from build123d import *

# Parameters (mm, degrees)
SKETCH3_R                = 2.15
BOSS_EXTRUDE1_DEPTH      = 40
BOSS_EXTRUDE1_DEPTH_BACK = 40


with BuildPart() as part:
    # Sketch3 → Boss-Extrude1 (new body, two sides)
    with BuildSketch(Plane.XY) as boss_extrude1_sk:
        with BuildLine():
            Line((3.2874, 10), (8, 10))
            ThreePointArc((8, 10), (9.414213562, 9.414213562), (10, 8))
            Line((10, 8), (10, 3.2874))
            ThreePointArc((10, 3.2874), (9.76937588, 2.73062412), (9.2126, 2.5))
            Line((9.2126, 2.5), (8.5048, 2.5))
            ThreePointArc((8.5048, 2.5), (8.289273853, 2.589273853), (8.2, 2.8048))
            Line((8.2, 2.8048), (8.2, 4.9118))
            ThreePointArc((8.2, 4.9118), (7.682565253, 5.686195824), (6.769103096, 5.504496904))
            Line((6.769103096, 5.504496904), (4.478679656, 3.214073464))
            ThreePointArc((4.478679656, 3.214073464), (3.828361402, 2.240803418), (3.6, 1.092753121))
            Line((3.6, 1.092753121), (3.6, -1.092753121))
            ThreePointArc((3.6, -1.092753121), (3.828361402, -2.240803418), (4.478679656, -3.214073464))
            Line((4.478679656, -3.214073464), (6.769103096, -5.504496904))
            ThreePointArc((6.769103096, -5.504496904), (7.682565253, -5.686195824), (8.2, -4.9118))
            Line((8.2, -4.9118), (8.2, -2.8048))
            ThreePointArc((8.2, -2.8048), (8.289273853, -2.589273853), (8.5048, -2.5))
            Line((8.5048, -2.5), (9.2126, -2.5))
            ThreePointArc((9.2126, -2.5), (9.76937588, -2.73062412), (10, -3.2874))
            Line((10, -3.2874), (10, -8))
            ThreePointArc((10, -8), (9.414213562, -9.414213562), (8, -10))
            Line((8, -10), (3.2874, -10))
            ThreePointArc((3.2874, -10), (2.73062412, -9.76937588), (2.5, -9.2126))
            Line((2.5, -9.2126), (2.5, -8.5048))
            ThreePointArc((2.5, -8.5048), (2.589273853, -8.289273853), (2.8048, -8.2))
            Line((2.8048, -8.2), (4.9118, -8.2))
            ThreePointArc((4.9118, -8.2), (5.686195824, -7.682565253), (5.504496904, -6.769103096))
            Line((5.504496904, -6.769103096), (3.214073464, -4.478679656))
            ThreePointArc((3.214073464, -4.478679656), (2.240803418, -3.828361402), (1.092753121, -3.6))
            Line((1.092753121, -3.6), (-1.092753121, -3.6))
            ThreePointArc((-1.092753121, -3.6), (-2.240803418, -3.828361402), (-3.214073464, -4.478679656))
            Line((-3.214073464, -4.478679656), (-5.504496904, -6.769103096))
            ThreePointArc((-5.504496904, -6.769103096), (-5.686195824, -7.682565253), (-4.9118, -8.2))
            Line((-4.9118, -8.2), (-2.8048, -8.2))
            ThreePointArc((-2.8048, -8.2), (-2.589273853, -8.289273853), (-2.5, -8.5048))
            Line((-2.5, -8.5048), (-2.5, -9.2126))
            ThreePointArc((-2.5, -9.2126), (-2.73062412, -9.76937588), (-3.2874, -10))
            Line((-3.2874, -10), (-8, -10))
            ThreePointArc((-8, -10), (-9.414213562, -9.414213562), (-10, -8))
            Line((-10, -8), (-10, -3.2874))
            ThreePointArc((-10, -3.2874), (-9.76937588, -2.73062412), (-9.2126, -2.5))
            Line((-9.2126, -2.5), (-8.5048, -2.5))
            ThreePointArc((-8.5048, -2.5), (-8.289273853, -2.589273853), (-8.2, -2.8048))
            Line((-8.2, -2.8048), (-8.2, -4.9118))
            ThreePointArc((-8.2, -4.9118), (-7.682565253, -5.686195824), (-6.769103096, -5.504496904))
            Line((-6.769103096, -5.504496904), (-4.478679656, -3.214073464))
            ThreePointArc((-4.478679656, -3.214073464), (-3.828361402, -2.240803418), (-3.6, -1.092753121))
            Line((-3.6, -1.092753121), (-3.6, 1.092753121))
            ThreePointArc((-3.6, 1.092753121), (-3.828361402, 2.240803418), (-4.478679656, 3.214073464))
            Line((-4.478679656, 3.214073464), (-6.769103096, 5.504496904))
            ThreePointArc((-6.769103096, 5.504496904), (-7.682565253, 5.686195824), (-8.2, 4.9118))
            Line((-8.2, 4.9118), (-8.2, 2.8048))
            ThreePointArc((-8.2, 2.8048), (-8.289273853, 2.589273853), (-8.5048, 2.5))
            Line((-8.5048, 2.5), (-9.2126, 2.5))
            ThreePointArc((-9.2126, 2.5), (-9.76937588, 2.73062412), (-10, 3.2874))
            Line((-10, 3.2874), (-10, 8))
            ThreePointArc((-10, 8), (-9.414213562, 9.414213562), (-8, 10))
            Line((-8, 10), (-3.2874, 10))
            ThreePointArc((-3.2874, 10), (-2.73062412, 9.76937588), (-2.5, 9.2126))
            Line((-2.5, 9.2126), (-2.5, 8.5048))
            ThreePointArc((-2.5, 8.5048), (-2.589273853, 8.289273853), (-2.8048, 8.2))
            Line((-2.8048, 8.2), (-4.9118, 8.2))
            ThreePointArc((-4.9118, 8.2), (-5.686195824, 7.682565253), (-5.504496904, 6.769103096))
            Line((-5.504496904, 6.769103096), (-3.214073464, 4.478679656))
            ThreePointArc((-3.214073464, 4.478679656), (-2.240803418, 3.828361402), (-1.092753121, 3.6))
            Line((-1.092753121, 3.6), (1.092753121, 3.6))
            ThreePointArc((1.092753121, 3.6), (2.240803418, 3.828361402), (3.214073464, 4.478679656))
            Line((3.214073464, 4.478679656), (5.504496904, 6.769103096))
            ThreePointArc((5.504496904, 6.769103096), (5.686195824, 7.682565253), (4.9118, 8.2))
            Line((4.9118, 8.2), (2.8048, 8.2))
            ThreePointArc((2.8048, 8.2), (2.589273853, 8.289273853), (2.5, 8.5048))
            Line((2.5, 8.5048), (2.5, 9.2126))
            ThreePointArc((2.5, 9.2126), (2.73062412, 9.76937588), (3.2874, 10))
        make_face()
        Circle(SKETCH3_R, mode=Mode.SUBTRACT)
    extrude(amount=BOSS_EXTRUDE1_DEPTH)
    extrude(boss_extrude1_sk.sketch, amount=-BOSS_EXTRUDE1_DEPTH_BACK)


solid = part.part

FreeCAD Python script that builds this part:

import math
import FreeCAD as App
import Part
import Sketcher

doc = App.newDocument("Part")
body = doc.addObject("PartDesign::Body", "Body")

# Sketch on XY plane
sketch1 = body.newObject("Sketcher::SketchObject", "Sketch")
sketch1.AttachmentSupport = (doc.getObject("XY_Plane"), [""])
sketch1.MapMode = "FlatFace"
sketch1.addGeometry(Part.LineSegment(App.Vector(8, 10, 0), App.Vector(3.29, 10, 0)), False)
sketch1.addGeometry(Part.ArcOfCircle(Part.Circle(App.Vector(3.29, 9.21, 0), App.Vector(0, 0, 1), 0.79), math.radians(90), math.radians(180)), False)
sketch1.addGeometry(Part.LineSegment(App.Vector(2.5, 9.21, 0), App.Vector(2.5, 8.5, 0)), False)
sketch1.addGeometry(Part.ArcOfCircle(Part.Circle(App.Vector(2.8, 8.5, 0), App.Vector(0, 0, 1), 0.3), math.radians(180), math.radians(270)), False)
sketch1.addGeometry(Part.LineSegment(App.Vector(2.8, 8.2, 0), App.Vector(4.91, 8.2, 0)), False)
sketch1.addGeometry(Part.ArcOfCircle(Part.Circle(App.Vector(4.91, 7.36, 0), App.Vector(0, 0, 1), 0.84), math.radians(-45), math.radians(90)), False)
sketch1.addGeometry(Part.LineSegment(App.Vector(5.5, 6.77, 0), App.Vector(3.21, 4.48, 0)), False)
sketch1.addGeometry(Part.ArcOfCircle(Part.Circle(App.Vector(1.09, 6.6, 0), App.Vector(0, 0, 1), 3), math.radians(-90), math.radians(-45)), False)
sketch1.addGeometry(Part.LineSegment(App.Vector(1.09, 3.6, 0), App.Vector(-1.09, 3.6, 0)), False)
sketch1.addGeometry(Part.ArcOfCircle(Part.Circle(App.Vector(-1.09, 6.6, 0), App.Vector(0, 0, 1), 3), math.radians(-135), math.radians(-90)), False)
sketch1.addGeometry(Part.LineSegment(App.Vector(-3.21, 4.48, 0), App.Vector(-5.5, 6.77, 0)), False)
sketch1.addGeometry(Part.ArcOfCircle(Part.Circle(App.Vector(-4.91, 7.36, 0), App.Vector(0, 0, 1), 0.84), math.radians(90), math.radians(225)), False)
sketch1.addGeometry(Part.LineSegment(App.Vector(-4.91, 8.2, 0), App.Vector(-2.8, 8.2, 0)), False)
sketch1.addGeometry(Part.ArcOfCircle(Part.Circle(App.Vector(-2.8, 8.5, 0), App.Vector(0, 0, 1), 0.3), math.radians(-90), math.radians(0)), False)
sketch1.addGeometry(Part.LineSegment(App.Vector(-2.5, 8.5, 0), App.Vector(-2.5, 9.21, 0)), False)
sketch1.addGeometry(Part.ArcOfCircle(Part.Circle(App.Vector(-3.29, 9.21, 0), App.Vector(0, 0, 1), 0.79), math.radians(0), math.radians(90)), False)
sketch1.addGeometry(Part.LineSegment(App.Vector(-3.29, 10, 0), App.Vector(-8, 10, 0)), False)
sketch1.addGeometry(Part.ArcOfCircle(Part.Circle(App.Vector(-8, 8, 0), App.Vector(0, 0, 1), 2), math.radians(90), math.radians(180)), False)
sketch1.addGeometry(Part.LineSegment(App.Vector(-10, 8, 0), App.Vector(-10, 3.29, 0)), False)
sketch1.addGeometry(Part.ArcOfCircle(Part.Circle(App.Vector(-9.21, 3.29, 0), App.Vector(0, 0, 1), 0.79), math.radians(180), math.radians(270)), False)
sketch1.addGeometry(Part.LineSegment(App.Vector(-9.21, 2.5, 0), App.Vector(-8.5, 2.5, 0)), False)
sketch1.addGeometry(Part.ArcOfCircle(Part.Circle(App.Vector(-8.5, 2.8, 0), App.Vector(0, 0, 1), 0.3), math.radians(-90), math.radians(0)), False)
sketch1.addGeometry(Part.LineSegment(App.Vector(-8.2, 2.8, 0), App.Vector(-8.2, 4.91, 0)), False)
sketch1.addGeometry(Part.ArcOfCircle(Part.Circle(App.Vector(-7.36, 4.91, 0), App.Vector(0, 0, 1), 0.84), math.radians(45), math.radians(180)), False)
sketch1.addGeometry(Part.LineSegment(App.Vector(-6.77, 5.5, 0), App.Vector(-4.48, 3.21, 0)), False)
sketch1.addGeometry(Part.ArcOfCircle(Part.Circle(App.Vector(-6.6, 1.09, 0), App.Vector(0, 0, 1), 3), math.radians(0), math.radians(45)), False)
sketch1.addGeometry(Part.LineSegment(App.Vector(-3.6, 1.09, 0), App.Vector(-3.6, -1.09, 0)), False)
sketch1.addGeometry(Part.ArcOfCircle(Part.Circle(App.Vector(-6.6, -1.09, 0), App.Vector(0, 0, 1), 3), math.radians(-45), math.radians(0)), False)
sketch1.addGeometry(Part.LineSegment(App.Vector(-4.48, -3.21, 0), App.Vector(-6.77, -5.5, 0)), False)
sketch1.addGeometry(Part.ArcOfCircle(Part.Circle(App.Vector(-7.36, -4.91, 0), App.Vector(0, 0, 1), 0.84), math.radians(180), math.radians(315)), False)
sketch1.addGeometry(Part.LineSegment(App.Vector(-8.2, -4.91, 0), App.Vector(-8.2, -2.8, 0)), False)
sketch1.addGeometry(Part.ArcOfCircle(Part.Circle(App.Vector(-8.5, -2.8, 0), App.Vector(0, 0, 1), 0.3), math.radians(0), math.radians(90)), False)
sketch1.addGeometry(Part.LineSegment(App.Vector(-8.5, -2.5, 0), App.Vector(-9.21, -2.5, 0)), False)
sketch1.addGeometry(Part.ArcOfCircle(Part.Circle(App.Vector(-9.21, -3.29, 0), App.Vector(0, 0, 1), 0.79), math.radians(90), math.radians(180)), False)
sketch1.addGeometry(Part.LineSegment(App.Vector(-10, -3.29, 0), App.Vector(-10, -8, 0)), False)
sketch1.addGeometry(Part.ArcOfCircle(Part.Circle(App.Vector(-8, -8, 0), App.Vector(0, 0, 1), 2), math.radians(-180), math.radians(-90)), False)
sketch1.addGeometry(Part.LineSegment(App.Vector(-8, -10, 0), App.Vector(-3.29, -10, 0)), False)
sketch1.addGeometry(Part.ArcOfCircle(Part.Circle(App.Vector(-3.29, -9.21, 0), App.Vector(0, 0, 1), 0.79), math.radians(-90), math.radians(0)), False)
sketch1.addGeometry(Part.LineSegment(App.Vector(-2.5, -9.21, 0), App.Vector(-2.5, -8.5, 0)), False)
sketch1.addGeometry(Part.ArcOfCircle(Part.Circle(App.Vector(-2.8, -8.5, 0), App.Vector(0, 0, 1), 0.3), math.radians(0), math.radians(90)), False)
sketch1.addGeometry(Part.LineSegment(App.Vector(-2.8, -8.2, 0), App.Vector(-4.91, -8.2, 0)), False)
sketch1.addGeometry(Part.ArcOfCircle(Part.Circle(App.Vector(-4.91, -7.36, 0), App.Vector(0, 0, 1), 0.84), math.radians(135), math.radians(270)), False)
sketch1.addGeometry(Part.LineSegment(App.Vector(-5.5, -6.77, 0), App.Vector(-3.21, -4.48, 0)), False)
sketch1.addGeometry(Part.ArcOfCircle(Part.Circle(App.Vector(-1.09, -6.6, 0), App.Vector(0, 0, 1), 3), math.radians(90), math.radians(135)), False)
sketch1.addGeometry(Part.LineSegment(App.Vector(-1.09, -3.6, 0), App.Vector(1.09, -3.6, 0)), False)
sketch1.addGeometry(Part.ArcOfCircle(Part.Circle(App.Vector(1.09, -6.6, 0), App.Vector(0, 0, 1), 3), math.radians(45), math.radians(90)), False)
sketch1.addGeometry(Part.LineSegment(App.Vector(3.21, -4.48, 0), App.Vector(5.5, -6.77, 0)), False)
sketch1.addGeometry(Part.ArcOfCircle(Part.Circle(App.Vector(4.91, -7.36, 0), App.Vector(0, 0, 1), 0.84), math.radians(-90), math.radians(45)), False)
sketch1.addGeometry(Part.LineSegment(App.Vector(4.91, -8.2, 0), App.Vector(2.8, -8.2, 0)), False)
sketch1.addGeometry(Part.ArcOfCircle(Part.Circle(App.Vector(2.8, -8.5, 0), App.Vector(0, 0, 1), 0.3), math.radians(90), math.radians(180)), False)
sketch1.addGeometry(Part.LineSegment(App.Vector(2.5, -8.5, 0), App.Vector(2.5, -9.21, 0)), False)
sketch1.addGeometry(Part.ArcOfCircle(Part.Circle(App.Vector(3.29, -9.21, 0), App.Vector(0, 0, 1), 0.79), math.radians(180), math.radians(270)), False)
sketch1.addGeometry(Part.LineSegment(App.Vector(3.29, -10, 0), App.Vector(8, -10, 0)), False)
sketch1.addGeometry(Part.ArcOfCircle(Part.Circle(App.Vector(8, -8, 0), App.Vector(0, 0, 1), 2), math.radians(-90), math.radians(0)), False)
sketch1.addGeometry(Part.LineSegment(App.Vector(10, -8, 0), App.Vector(10, -3.29, 0)), False)
sketch1.addGeometry(Part.ArcOfCircle(Part.Circle(App.Vector(9.21, -3.29, 0), App.Vector(0, 0, 1), 0.79), math.radians(0), math.radians(90)), False)
sketch1.addGeometry(Part.LineSegment(App.Vector(9.21, -2.5, 0), App.Vector(8.5, -2.5, 0)), False)
sketch1.addGeometry(Part.ArcOfCircle(Part.Circle(App.Vector(8.5, -2.8, 0), App.Vector(0, 0, 1), 0.3), math.radians(90), math.radians(180)), False)
sketch1.addGeometry(Part.LineSegment(App.Vector(8.2, -2.8, 0), App.Vector(8.2, -4.91, 0)), False)
sketch1.addGeometry(Part.ArcOfCircle(Part.Circle(App.Vector(7.36, -4.91, 0), App.Vector(0, 0, 1), 0.84), math.radians(-135), math.radians(0)), False)
sketch1.addGeometry(Part.LineSegment(App.Vector(6.77, -5.5, 0), App.Vector(4.48, -3.21, 0)), False)
sketch1.addGeometry(Part.ArcOfCircle(Part.Circle(App.Vector(6.6, -1.09, 0), App.Vector(0, 0, 1), 3), math.radians(180), math.radians(225)), False)
sketch1.addGeometry(Part.LineSegment(App.Vector(3.6, -1.09, 0), App.Vector(3.6, 1.09, 0)), False)
sketch1.addGeometry(Part.ArcOfCircle(Part.Circle(App.Vector(6.6, 1.09, 0), App.Vector(0, 0, 1), 3), math.radians(135), math.radians(180)), False)
sketch1.addGeometry(Part.LineSegment(App.Vector(4.48, 3.21, 0), App.Vector(6.77, 5.5, 0)), False)
sketch1.addGeometry(Part.ArcOfCircle(Part.Circle(App.Vector(7.36, 4.91, 0), App.Vector(0, 0, 1), 0.84), math.radians(0), math.radians(135)), False)
sketch1.addGeometry(Part.LineSegment(App.Vector(8.2, 4.91, 0), App.Vector(8.2, 2.8, 0)), False)
sketch1.addGeometry(Part.ArcOfCircle(Part.Circle(App.Vector(8.5, 2.8, 0), App.Vector(0, 0, 1), 0.3), math.radians(180), math.radians(270)), False)
sketch1.addGeometry(Part.LineSegment(App.Vector(8.5, 2.5, 0), App.Vector(9.21, 2.5, 0)), False)
sketch1.addGeometry(Part.ArcOfCircle(Part.Circle(App.Vector(9.21, 3.29, 0), App.Vector(0, 0, 1), 0.79), math.radians(-90), math.radians(0)), False)
sketch1.addGeometry(Part.LineSegment(App.Vector(10, 3.29, 0), App.Vector(10, 8, 0)), False)
sketch1.addGeometry(Part.ArcOfCircle(Part.Circle(App.Vector(8, 8, 0), App.Vector(0, 0, 1), 2), math.radians(0), math.radians(90)), False)
sketch1.addGeometry(Part.Circle(App.Vector(0, 0, 0), App.Vector(0, 0, 1), 2.15), False)
sketch1.addConstraint(Sketcher.Constraint("Tangent", 0, 2, 1, 1))
sketch1.addConstraint(Sketcher.Constraint("Tangent", 1, 2, 2, 1))
sketch1.addConstraint(Sketcher.Constraint("Tangent", 2, 2, 3, 1))
sketch1.addConstraint(Sketcher.Constraint("Tangent", 3, 2, 4, 1))
sketch1.addConstraint(Sketcher.Constraint("Tangent", 4, 2, 5, 2))
sketch1.addConstraint(Sketcher.Constraint("Tangent", 5, 1, 6, 1))
sketch1.addConstraint(Sketcher.Constraint("Tangent", 6, 2, 7, 2))
sketch1.addConstraint(Sketcher.Constraint("Tangent", 7, 1, 8, 1))
sketch1.addConstraint(Sketcher.Constraint("Tangent", 8, 2, 9, 2))
sketch1.addConstraint(Sketcher.Constraint("Tangent", 9, 1, 10, 1))
sketch1.addConstraint(Sketcher.Constraint("Tangent", 10, 2, 11, 2))
sketch1.addConstraint(Sketcher.Constraint("Tangent", 11, 1, 12, 1))
sketch1.addConstraint(Sketcher.Constraint("Tangent", 12, 2, 13, 1))
sketch1.addConstraint(Sketcher.Constraint("Tangent", 13, 2, 14, 1))
sketch1.addConstraint(Sketcher.Constraint("Tangent", 14, 2, 15, 1))
sketch1.addConstraint(Sketcher.Constraint("Tangent", 15, 2, 16, 1))
sketch1.addConstraint(Sketcher.Constraint("Tangent", 16, 2, 17, 1))
sketch1.addConstraint(Sketcher.Constraint("Tangent", 17, 2, 18, 1))
sketch1.addConstraint(Sketcher.Constraint("Tangent", 18, 2, 19, 1))
sketch1.addConstraint(Sketcher.Constraint("Tangent", 19, 2, 20, 1))
sketch1.addConstraint(Sketcher.Constraint("Tangent", 20, 2, 21, 1))
sketch1.addConstraint(Sketcher.Constraint("Tangent", 21, 2, 22, 1))
sketch1.addConstraint(Sketcher.Constraint("Tangent", 22, 2, 23, 2))
sketch1.addConstraint(Sketcher.Constraint("Tangent", 23, 1, 24, 1))
sketch1.addConstraint(Sketcher.Constraint("Tangent", 24, 2, 25, 2))
sketch1.addConstraint(Sketcher.Constraint("Tangent", 25, 1, 26, 1))
sketch1.addConstraint(Sketcher.Constraint("Tangent", 26, 2, 27, 2))
sketch1.addConstraint(Sketcher.Constraint("Tangent", 27, 1, 28, 1))
sketch1.addConstraint(Sketcher.Constraint("Tangent", 28, 2, 29, 2))
sketch1.addConstraint(Sketcher.Constraint("Tangent", 29, 1, 30, 1))
sketch1.addConstraint(Sketcher.Constraint("Tangent", 30, 2, 31, 1))
sketch1.addConstraint(Sketcher.Constraint("Tangent", 31, 2, 32, 1))
sketch1.addConstraint(Sketcher.Constraint("Tangent", 32, 2, 33, 1))
sketch1.addConstraint(Sketcher.Constraint("Tangent", 33, 2, 34, 1))
sketch1.addConstraint(Sketcher.Constraint("Tangent", 34, 2, 35, 1))
sketch1.addConstraint(Sketcher.Constraint("Tangent", 35, 2, 36, 1))
sketch1.addConstraint(Sketcher.Constraint("Tangent", 36, 2, 37, 1))
sketch1.addConstraint(Sketcher.Constraint("Tangent", 37, 2, 38, 1))
sketch1.addConstraint(Sketcher.Constraint("Tangent", 38, 2, 39, 1))
sketch1.addConstraint(Sketcher.Constraint("Tangent", 39, 2, 40, 1))
sketch1.addConstraint(Sketcher.Constraint("Tangent", 40, 2, 41, 2))
sketch1.addConstraint(Sketcher.Constraint("Tangent", 41, 1, 42, 1))
sketch1.addConstraint(Sketcher.Constraint("Tangent", 42, 2, 43, 2))
sketch1.addConstraint(Sketcher.Constraint("Tangent", 43, 1, 44, 1))
sketch1.addConstraint(Sketcher.Constraint("Tangent", 44, 2, 45, 2))
sketch1.addConstraint(Sketcher.Constraint("Tangent", 45, 1, 46, 1))
sketch1.addConstraint(Sketcher.Constraint("Tangent", 46, 2, 47, 2))
sketch1.addConstraint(Sketcher.Constraint("Tangent", 47, 1, 48, 1))
sketch1.addConstraint(Sketcher.Constraint("Tangent", 48, 2, 49, 1))
sketch1.addConstraint(Sketcher.Constraint("Tangent", 49, 2, 50, 1))
sketch1.addConstraint(Sketcher.Constraint("Tangent", 50, 2, 51, 1))
sketch1.addConstraint(Sketcher.Constraint("Tangent", 51, 2, 52, 1))
sketch1.addConstraint(Sketcher.Constraint("Tangent", 52, 2, 53, 1))
sketch1.addConstraint(Sketcher.Constraint("Tangent", 53, 2, 54, 1))
sketch1.addConstraint(Sketcher.Constraint("Tangent", 54, 2, 55, 1))
sketch1.addConstraint(Sketcher.Constraint("Tangent", 55, 2, 56, 1))
sketch1.addConstraint(Sketcher.Constraint("Tangent", 56, 2, 57, 1))
sketch1.addConstraint(Sketcher.Constraint("Tangent", 57, 2, 58, 1))
sketch1.addConstraint(Sketcher.Constraint("Tangent", 58, 2, 59, 2))
sketch1.addConstraint(Sketcher.Constraint("Tangent", 59, 1, 60, 1))
sketch1.addConstraint(Sketcher.Constraint("Tangent", 60, 2, 61, 2))
sketch1.addConstraint(Sketcher.Constraint("Tangent", 61, 1, 62, 1))
sketch1.addConstraint(Sketcher.Constraint("Tangent", 62, 2, 63, 2))
sketch1.addConstraint(Sketcher.Constraint("Tangent", 63, 1, 64, 1))
sketch1.addConstraint(Sketcher.Constraint("Tangent", 64, 2, 65, 2))
sketch1.addConstraint(Sketcher.Constraint("Tangent", 65, 1, 66, 1))
sketch1.addConstraint(Sketcher.Constraint("Tangent", 66, 2, 67, 1))
sketch1.addConstraint(Sketcher.Constraint("Tangent", 67, 2, 68, 1))
sketch1.addConstraint(Sketcher.Constraint("Tangent", 68, 2, 69, 1))
sketch1.addConstraint(Sketcher.Constraint("Tangent", 69, 2, 70, 1))
sketch1.addConstraint(Sketcher.Constraint("Tangent", 70, 2, 71, 1))
sketch1.addConstraint(Sketcher.Constraint("Tangent", 71, 2, 0, 1))
sketch1.addConstraint(Sketcher.Constraint("Horizontal", 0))
sketch1.addConstraint(Sketcher.Constraint("Vertical", 2))
sketch1.addConstraint(Sketcher.Constraint("Horizontal", 4))
sketch1.addConstraint(Sketcher.Constraint("Horizontal", 8))
sketch1.addConstraint(Sketcher.Constraint("Horizontal", 12))
sketch1.addConstraint(Sketcher.Constraint("Vertical", 14))
sketch1.addConstraint(Sketcher.Constraint("Horizontal", 16))
sketch1.addConstraint(Sketcher.Constraint("Vertical", 18))
sketch1.addConstraint(Sketcher.Constraint("Horizontal", 20))
sketch1.addConstraint(Sketcher.Constraint("Vertical", 22))
sketch1.addConstraint(Sketcher.Constraint("Vertical", 26))
sketch1.addConstraint(Sketcher.Constraint("Vertical", 30))
sketch1.addConstraint(Sketcher.Constraint("Horizontal", 32))
sketch1.addConstraint(Sketcher.Constraint("Vertical", 34))
sketch1.addConstraint(Sketcher.Constraint("Horizontal", 36))
sketch1.addConstraint(Sketcher.Constraint("Vertical", 38))
sketch1.addConstraint(Sketcher.Constraint("Horizontal", 40))
sketch1.addConstraint(Sketcher.Constraint("Horizontal", 44))
sketch1.addConstraint(Sketcher.Constraint("Horizontal", 48))
sketch1.addConstraint(Sketcher.Constraint("Vertical", 50))
sketch1.addConstraint(Sketcher.Constraint("Horizontal", 52))
sketch1.addConstraint(Sketcher.Constraint("Vertical", 54))
sketch1.addConstraint(Sketcher.Constraint("Horizontal", 56))
sketch1.addConstraint(Sketcher.Constraint("Vertical", 58))
sketch1.addConstraint(Sketcher.Constraint("Vertical", 62))
sketch1.addConstraint(Sketcher.Constraint("Vertical", 66))
sketch1.addConstraint(Sketcher.Constraint("Horizontal", 68))
sketch1.addConstraint(Sketcher.Constraint("Vertical", 70))
sketch1.addConstraint(Sketcher.Constraint("Coincident", 72, 3, -1, 1))
sketch1.addConstraint(Sketcher.Constraint("Equal", 7, 9))
sketch1.addConstraint(Sketcher.Constraint("Equal", 5, 11))
sketch1.addConstraint(Sketcher.Constraint("Equal", 3, 13))
sketch1.addConstraint(Sketcher.Constraint("Equal", 1, 15))
sketch1.addConstraint(Sketcher.Constraint("Equal", 15, 19))
sketch1.addConstraint(Sketcher.Constraint("Equal", 13, 21))
sketch1.addConstraint(Sketcher.Constraint("Equal", 11, 23))
sketch1.addConstraint(Sketcher.Constraint("Equal", 9, 25))
sketch1.addConstraint(Sketcher.Constraint("Equal", 25, 27))
sketch1.addConstraint(Sketcher.Constraint("Equal", 23, 29))
sketch1.addConstraint(Sketcher.Constraint("Equal", 21, 31))
sketch1.addConstraint(Sketcher.Constraint("Equal", 19, 33))
sketch1.addConstraint(Sketcher.Constraint("Equal", 17, 35))
sketch1.addConstraint(Sketcher.Constraint("Equal", 33, 37))
sketch1.addConstraint(Sketcher.Constraint("Equal", 31, 39))
sketch1.addConstraint(Sketcher.Constraint("Equal", 29, 41))
sketch1.addConstraint(Sketcher.Constraint("Equal", 27, 43))
sketch1.addConstraint(Sketcher.Constraint("Equal", 43, 45))
sketch1.addConstraint(Sketcher.Constraint("Equal", 41, 47))
sketch1.addConstraint(Sketcher.Constraint("Equal", 39, 49))
sketch1.addConstraint(Sketcher.Constraint("Equal", 37, 51))
sketch1.addConstraint(Sketcher.Constraint("Equal", 35, 53))
sketch1.addConstraint(Sketcher.Constraint("Equal", 51, 55))
sketch1.addConstraint(Sketcher.Constraint("Equal", 49, 57))
sketch1.addConstraint(Sketcher.Constraint("Equal", 47, 59))
sketch1.addConstraint(Sketcher.Constraint("Equal", 45, 61))
sketch1.addConstraint(Sketcher.Constraint("Equal", 61, 63))
sketch1.addConstraint(Sketcher.Constraint("Equal", 59, 65))
sketch1.addConstraint(Sketcher.Constraint("Equal", 57, 67))
sketch1.addConstraint(Sketcher.Constraint("Equal", 55, 69))
sketch1.addConstraint(Sketcher.Constraint("Equal", 53, 71))
sketch1.addConstraint(Sketcher.Constraint("Symmetric", 1, 3, 37, 3, -1, 1))
sketch1.addConstraint(Sketcher.Constraint("Symmetric", 5, 3, 41, 3, -1, 1))
sketch1.addConstraint(Sketcher.Constraint("Symmetric", 7, 3, 43, 3, -1, 1))
sketch1.addConstraint(Sketcher.Constraint("Symmetric", 11, 3, 47, 3, -1, 1))
sketch1.addConstraint(Sketcher.Constraint("Symmetric", 15, 3, 51, 3, -1, 1))
sketch1.addConstraint(Sketcher.Constraint("Symmetric", 19, 3, 55, 3, -1, 1))
sketch1.addConstraint(Sketcher.Constraint("Symmetric", 23, 3, 59, 3, -1, 1))
sketch1.addConstraint(Sketcher.Constraint("Symmetric", 25, 3, 61, 3, -1, 1))
sketch1.addConstraint(Sketcher.Constraint("Symmetric", 29, 3, 65, 3, -1, 1))
sketch1.addConstraint(Sketcher.Constraint("Symmetric", 33, 3, 69, 3, -1, 1))
sketch1.addConstraint(Sketcher.Constraint("Symmetric", 5, 3, 11, 3, -2))
sketch1.addConstraint(Sketcher.Constraint("Symmetric", 1, 3, 15, 3, -2))
sketch1.addConstraint(Sketcher.Constraint("Symmetric", 33, 3, 55, 3, -2))
sketch1.addConstraint(Sketcher.Constraint("Symmetric", 29, 3, 59, 3, -2))
sketch1.addConstraint(Sketcher.Constraint("Perpendicular", 6, 10))
sketch1.addConstraint(Sketcher.Constraint("Parallel", 10, 24))
sketch1.addConstraint(Sketcher.Constraint("Perpendicular", 24, 28))
sketch1.addConstraint(Sketcher.Constraint("Perpendicular", 42, 46))
sketch1.addConstraint(Sketcher.Constraint("Perpendicular", 60, 64))
sketch1.addConstraint(Sketcher.Constraint("Horizontal", 27, 3, 61, 3))
sketch1.addConstraint(Sketcher.Constraint("Equal", 68, 2))
sketch1.addConstraint(Sketcher.Constraint("Equal", 52, 18))
sketch1.addConstraint(Sketcher.Constraint("Equal", 48, 22))
sketch1.addConstraint(Sketcher.Constraint("Equal", 44, 26))
sketch1.addConstraint(Sketcher.Constraint("Equal", 10, 24))
sketch1.addConstraint(Sketcher.Constraint("Radius", 7, 3.0))
sketch1.addConstraint(Sketcher.Constraint("Radius", 17, 2.0))
sketch1.addConstraint(Sketcher.Constraint("Diameter", 72, 4.3))
sketch1.addConstraint(Sketcher.Constraint("DistanceX", 17, 3, -1, 1, 8.0))
sketch1.addConstraint(Sketcher.Constraint("DistanceY", -1, 1, 7, 3, 6.6))
sketch1.addConstraint(Sketcher.Constraint("DistanceX", -1, 1, 1, 2, 2.5))
sketch1.addConstraint(Sketcher.Constraint("DistanceY", -1, 1, 3, 2, 8.2))
sketch1.addConstraint(Sketcher.Constraint("Radius", 1, 0.7874))
sketch1.addConstraint(Sketcher.Constraint("Radius", 3, 0.3048))
sketch1.addConstraint(Sketcher.Constraint("Radius", 5, 0.8382))
sketch1.addConstraint(Sketcher.Constraint("DistanceX", 4, 1, 4, 2, 2.107))
pad1 = body.newObject("PartDesign::Pad", "Pad")
pad1.Profile = sketch1
pad1.Type = "TwoLengths"
pad1.Length = 40
pad1.Length2 = 40

doc.recompute()
